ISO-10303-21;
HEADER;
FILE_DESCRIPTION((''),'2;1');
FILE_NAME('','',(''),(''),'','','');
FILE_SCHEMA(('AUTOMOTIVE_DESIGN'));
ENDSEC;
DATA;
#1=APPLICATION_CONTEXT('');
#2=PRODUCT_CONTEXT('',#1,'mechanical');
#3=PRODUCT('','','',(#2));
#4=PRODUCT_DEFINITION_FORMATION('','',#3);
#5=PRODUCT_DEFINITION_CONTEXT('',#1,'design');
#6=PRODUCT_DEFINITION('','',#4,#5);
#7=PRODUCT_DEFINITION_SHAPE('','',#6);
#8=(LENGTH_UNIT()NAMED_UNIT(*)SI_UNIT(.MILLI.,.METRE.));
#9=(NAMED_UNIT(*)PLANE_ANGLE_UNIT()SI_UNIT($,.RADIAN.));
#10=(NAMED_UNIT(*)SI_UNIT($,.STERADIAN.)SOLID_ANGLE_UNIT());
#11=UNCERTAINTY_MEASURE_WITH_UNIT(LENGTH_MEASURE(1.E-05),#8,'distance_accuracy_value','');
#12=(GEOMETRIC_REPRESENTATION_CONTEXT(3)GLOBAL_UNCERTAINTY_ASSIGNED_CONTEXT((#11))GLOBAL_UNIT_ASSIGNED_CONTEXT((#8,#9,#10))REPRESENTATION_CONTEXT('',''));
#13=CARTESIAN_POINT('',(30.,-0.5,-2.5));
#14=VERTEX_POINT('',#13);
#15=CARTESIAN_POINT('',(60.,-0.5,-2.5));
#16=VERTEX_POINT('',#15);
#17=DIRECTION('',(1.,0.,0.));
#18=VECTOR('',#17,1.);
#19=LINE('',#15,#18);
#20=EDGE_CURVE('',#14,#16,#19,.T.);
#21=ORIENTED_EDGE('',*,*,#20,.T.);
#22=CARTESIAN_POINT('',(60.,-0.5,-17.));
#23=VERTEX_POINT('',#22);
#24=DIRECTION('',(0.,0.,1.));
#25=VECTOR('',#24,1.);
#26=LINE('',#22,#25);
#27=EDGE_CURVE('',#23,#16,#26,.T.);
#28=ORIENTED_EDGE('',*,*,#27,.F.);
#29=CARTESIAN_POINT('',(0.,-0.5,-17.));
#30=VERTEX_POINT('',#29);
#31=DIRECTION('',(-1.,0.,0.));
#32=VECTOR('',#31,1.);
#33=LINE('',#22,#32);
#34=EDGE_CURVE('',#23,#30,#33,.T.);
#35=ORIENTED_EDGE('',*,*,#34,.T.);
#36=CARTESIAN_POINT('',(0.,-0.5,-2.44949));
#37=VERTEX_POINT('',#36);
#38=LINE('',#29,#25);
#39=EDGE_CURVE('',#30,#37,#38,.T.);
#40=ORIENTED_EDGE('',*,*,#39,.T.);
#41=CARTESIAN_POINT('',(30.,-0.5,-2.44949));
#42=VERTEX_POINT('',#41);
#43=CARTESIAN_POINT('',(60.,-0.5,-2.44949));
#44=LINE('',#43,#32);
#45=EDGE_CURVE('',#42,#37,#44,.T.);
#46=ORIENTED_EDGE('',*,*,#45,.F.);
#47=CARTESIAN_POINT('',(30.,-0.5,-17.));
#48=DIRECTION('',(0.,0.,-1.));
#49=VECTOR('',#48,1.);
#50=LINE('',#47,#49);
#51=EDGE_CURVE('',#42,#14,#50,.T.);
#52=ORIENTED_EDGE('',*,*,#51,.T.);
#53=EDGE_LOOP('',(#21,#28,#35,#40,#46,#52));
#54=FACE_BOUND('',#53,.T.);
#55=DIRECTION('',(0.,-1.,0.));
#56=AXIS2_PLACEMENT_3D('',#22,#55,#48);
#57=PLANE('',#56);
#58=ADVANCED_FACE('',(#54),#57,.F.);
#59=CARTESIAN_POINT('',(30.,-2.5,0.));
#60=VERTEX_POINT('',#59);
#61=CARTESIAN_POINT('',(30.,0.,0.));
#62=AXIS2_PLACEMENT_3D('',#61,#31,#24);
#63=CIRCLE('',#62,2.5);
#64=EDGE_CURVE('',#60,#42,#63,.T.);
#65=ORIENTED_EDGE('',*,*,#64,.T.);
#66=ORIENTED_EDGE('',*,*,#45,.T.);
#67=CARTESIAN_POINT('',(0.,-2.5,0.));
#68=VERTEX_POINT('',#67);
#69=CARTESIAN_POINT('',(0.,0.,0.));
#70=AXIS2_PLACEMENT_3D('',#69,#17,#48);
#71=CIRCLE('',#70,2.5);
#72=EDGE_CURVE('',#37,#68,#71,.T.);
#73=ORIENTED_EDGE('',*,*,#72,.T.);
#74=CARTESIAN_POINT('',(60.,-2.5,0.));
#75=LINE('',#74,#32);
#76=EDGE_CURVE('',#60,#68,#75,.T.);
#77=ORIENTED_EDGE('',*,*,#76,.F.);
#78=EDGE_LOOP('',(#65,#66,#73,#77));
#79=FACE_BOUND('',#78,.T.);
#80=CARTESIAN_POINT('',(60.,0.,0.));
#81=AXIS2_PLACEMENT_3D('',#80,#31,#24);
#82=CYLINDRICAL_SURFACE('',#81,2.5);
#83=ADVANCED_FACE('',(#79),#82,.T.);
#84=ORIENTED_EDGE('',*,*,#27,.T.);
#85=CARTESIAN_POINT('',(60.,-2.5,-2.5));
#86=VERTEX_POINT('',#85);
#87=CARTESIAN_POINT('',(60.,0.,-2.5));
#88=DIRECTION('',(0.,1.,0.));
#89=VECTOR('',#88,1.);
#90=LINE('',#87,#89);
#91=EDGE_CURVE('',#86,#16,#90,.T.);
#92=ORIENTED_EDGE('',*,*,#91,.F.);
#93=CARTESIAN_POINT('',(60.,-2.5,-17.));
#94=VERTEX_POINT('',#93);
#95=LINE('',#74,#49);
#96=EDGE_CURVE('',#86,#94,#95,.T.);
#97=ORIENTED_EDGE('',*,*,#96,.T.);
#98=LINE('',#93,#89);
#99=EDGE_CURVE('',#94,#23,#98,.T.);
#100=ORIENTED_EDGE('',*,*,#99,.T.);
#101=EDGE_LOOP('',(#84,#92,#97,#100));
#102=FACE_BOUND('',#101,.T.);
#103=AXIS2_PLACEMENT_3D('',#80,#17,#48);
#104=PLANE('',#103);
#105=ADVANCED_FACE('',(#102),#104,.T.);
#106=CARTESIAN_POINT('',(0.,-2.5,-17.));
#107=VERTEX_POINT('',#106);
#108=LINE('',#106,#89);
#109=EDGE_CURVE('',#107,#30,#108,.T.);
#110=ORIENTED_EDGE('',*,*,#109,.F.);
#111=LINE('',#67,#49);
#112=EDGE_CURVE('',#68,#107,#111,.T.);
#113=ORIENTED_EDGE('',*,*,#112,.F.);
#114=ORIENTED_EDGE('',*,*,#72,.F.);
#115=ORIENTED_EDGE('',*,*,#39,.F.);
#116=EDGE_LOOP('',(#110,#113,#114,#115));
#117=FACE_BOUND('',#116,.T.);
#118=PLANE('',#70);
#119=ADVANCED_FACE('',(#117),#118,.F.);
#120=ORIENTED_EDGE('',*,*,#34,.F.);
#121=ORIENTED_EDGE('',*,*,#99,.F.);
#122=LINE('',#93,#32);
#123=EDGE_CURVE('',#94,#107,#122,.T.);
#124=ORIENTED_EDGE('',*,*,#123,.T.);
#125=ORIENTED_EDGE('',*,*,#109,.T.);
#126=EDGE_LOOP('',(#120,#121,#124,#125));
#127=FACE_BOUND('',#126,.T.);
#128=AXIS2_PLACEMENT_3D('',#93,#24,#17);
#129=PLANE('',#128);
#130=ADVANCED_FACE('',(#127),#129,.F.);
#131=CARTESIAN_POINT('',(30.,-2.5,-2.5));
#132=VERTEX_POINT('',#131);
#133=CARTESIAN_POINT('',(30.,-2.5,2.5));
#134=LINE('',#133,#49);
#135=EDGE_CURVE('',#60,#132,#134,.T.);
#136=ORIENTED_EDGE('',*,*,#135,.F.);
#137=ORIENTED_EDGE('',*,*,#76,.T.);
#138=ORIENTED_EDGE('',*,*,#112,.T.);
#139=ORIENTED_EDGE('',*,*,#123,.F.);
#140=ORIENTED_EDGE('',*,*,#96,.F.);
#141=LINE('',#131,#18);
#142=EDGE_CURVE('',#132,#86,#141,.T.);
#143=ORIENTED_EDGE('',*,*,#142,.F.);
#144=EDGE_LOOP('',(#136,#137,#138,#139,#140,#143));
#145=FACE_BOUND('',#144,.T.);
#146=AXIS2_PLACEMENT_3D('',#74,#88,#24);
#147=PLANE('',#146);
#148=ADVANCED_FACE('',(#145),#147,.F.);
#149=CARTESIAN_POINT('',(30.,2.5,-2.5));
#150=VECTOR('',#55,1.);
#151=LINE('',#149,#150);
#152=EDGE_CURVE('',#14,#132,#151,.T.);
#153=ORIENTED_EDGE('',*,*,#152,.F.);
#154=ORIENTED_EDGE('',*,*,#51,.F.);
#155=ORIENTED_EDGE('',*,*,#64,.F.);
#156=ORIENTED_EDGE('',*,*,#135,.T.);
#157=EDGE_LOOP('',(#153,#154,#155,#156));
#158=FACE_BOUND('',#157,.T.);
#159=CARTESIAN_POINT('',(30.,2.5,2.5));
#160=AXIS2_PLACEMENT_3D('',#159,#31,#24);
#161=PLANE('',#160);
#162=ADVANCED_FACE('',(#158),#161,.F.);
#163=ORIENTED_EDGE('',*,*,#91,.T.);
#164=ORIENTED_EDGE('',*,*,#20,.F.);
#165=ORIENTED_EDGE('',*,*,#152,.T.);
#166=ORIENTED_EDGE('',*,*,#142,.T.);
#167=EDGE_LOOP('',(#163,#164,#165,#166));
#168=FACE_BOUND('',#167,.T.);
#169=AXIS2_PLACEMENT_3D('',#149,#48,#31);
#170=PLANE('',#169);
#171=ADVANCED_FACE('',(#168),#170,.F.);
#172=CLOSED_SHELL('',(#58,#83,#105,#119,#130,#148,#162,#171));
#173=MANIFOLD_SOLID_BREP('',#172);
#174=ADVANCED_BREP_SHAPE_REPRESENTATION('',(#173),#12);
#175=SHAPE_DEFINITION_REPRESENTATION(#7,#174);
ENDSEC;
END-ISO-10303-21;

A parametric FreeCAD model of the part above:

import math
import FreeCAD as App
import Part
import Sketcher

V = App.Vector
Q = App.Units.Quantity


def add_polygon(sketch, points):
    """Adds a closed chain of lines whose ends are joined by coincident constraints."""
    first, n = sketch.GeometryCount, len(points)
    for a, b in zip(points, points[1:] + points[:1]):
        sketch.addGeometry(Part.LineSegment(App.Vector(*a, 0), App.Vector(*b, 0)), False)
    for i in range(n):
        sketch.addConstraint(Sketcher.Constraint("Coincident", first + i, 2, first + (i + 1) % n, 1))

doc = App.newDocument("Part")
params = doc.addObject("Spreadsheet::Sheet", "Params")
for row, (alias, value) in enumerate([
    ("sketch1_radius", "2.5 mm"),
    ("sketch1_width", "2 mm"),
    ("sketch1_height", "17 mm"),
    ("pad1_length", "60 mm"),
    ("sketch2_height", "5 mm"),
], start=1):
    params.set(f"A{row}", alias)
    params.set(f"B{row}", "=" + value)
    params.setAlias(f"B{row}", alias)

body = doc.addObject("PartDesign::Body", "Body")

# Sketch on YZ plane
sketch1 = body.newObject("Sketcher::SketchObject", "Sketch")
sketch1.AttachmentSupport = (doc.getObject("YZ_Plane"), [""])
sketch1.MapMode = "FlatFace"
sketch1.addGeometry([
    Part.LineSegment(V(-2.5, 0, 0), V(-2.5, -17, 0)),
    Part.LineSegment(V(-2.5, -17, 0), V(-0.5, -17, 0)),
    Part.LineSegment(V(-0.5, -17, 0), V(-0.5, -2.4, 0)),
    Part.ArcOfCircle(Part.Circle(V(0, 0, 0), V(0, 0, 1), 2.5), math.radians(-102), math.radians(180)),
], False)
sketch1.addConstraint([
    Sketcher.Constraint("Coincident", 0, 2, 1, 1),
    Sketcher.Constraint("Coincident", 1, 2, 2, 1),
    Sketcher.Constraint("Coincident", 2, 2, 3, 1),
    Sketcher.Constraint("Tangent", 3, 2, 0, 1),
    Sketcher.Constraint("Vertical", 0),
    Sketcher.Constraint("Horizontal", 1),
    Sketcher.Constraint("Vertical", 2),
    Sketcher.Constraint("Coincident", 3, 3, -1, 1),
    Sketcher.Constraint("Radius", 3, Q("2.5 mm")),
    Sketcher.Constraint("DistanceX", 1, 1, 1, 2, Q("2 mm")),
    Sketcher.Constraint("DistanceY", 0, 2, 0, 1, Q("17 mm")),
])
sketch1.setExpression("Constraints[8]", "Params.sketch1_radius")
sketch1.setExpression("Constraints[9]", "Params.sketch1_width")
sketch1.setExpression("Constraints[10]", "Params.sketch1_height")
pad1 = body.newObject("PartDesign::Pad", "Pad")
pad1.Profile = sketch1
pad1.setExpression("Length", "Params.pad1_length")

# Sketch on XZ plane
sketch2 = body.newObject("Sketcher::SketchObject", "Sketch001")
sketch2.AttachmentSupport = (doc.getObject("XZ_Plane"), [""])
sketch2.MapMode = "FlatFace"
sketch2.AttachmentOffset = App.Placement(V(0, 0, 2.5), App.Rotation())
add_polygon(sketch2, [(30, 2), (30, -2), (62, -2), (62, 2)])  # lines 0-3
sketch2.addConstraint([
    Sketcher.Constraint("Vertical", 0),
    Sketcher.Constraint("Horizontal", 1),
    Sketcher.Constraint("Vertical", 2),
    Sketcher.Constraint("Horizontal", 3),
    Sketcher.Constraint("DistanceY", 0, 2, 0, 1, Q("5 mm")),
    Sketcher.Constraint("DistanceX", -1, 1, 0, 2, Q("30 mm")),
    Sketcher.Constraint("DistanceY", 0, 2, -1, 1, Q("2.5 mm")),
    Sketcher.Constraint("DistanceX", 1, 1, 1, 2, Q("31.691445 mm")),
])
sketch2.setExpression("Constraints[8]", "Params.sketch2_height")
pocket1 = body.newObject("PartDesign::Pocket", "Pocket")
pocket1.Profile = sketch2
pocket1.Type = "ThroughAll"

doc.recompute()
